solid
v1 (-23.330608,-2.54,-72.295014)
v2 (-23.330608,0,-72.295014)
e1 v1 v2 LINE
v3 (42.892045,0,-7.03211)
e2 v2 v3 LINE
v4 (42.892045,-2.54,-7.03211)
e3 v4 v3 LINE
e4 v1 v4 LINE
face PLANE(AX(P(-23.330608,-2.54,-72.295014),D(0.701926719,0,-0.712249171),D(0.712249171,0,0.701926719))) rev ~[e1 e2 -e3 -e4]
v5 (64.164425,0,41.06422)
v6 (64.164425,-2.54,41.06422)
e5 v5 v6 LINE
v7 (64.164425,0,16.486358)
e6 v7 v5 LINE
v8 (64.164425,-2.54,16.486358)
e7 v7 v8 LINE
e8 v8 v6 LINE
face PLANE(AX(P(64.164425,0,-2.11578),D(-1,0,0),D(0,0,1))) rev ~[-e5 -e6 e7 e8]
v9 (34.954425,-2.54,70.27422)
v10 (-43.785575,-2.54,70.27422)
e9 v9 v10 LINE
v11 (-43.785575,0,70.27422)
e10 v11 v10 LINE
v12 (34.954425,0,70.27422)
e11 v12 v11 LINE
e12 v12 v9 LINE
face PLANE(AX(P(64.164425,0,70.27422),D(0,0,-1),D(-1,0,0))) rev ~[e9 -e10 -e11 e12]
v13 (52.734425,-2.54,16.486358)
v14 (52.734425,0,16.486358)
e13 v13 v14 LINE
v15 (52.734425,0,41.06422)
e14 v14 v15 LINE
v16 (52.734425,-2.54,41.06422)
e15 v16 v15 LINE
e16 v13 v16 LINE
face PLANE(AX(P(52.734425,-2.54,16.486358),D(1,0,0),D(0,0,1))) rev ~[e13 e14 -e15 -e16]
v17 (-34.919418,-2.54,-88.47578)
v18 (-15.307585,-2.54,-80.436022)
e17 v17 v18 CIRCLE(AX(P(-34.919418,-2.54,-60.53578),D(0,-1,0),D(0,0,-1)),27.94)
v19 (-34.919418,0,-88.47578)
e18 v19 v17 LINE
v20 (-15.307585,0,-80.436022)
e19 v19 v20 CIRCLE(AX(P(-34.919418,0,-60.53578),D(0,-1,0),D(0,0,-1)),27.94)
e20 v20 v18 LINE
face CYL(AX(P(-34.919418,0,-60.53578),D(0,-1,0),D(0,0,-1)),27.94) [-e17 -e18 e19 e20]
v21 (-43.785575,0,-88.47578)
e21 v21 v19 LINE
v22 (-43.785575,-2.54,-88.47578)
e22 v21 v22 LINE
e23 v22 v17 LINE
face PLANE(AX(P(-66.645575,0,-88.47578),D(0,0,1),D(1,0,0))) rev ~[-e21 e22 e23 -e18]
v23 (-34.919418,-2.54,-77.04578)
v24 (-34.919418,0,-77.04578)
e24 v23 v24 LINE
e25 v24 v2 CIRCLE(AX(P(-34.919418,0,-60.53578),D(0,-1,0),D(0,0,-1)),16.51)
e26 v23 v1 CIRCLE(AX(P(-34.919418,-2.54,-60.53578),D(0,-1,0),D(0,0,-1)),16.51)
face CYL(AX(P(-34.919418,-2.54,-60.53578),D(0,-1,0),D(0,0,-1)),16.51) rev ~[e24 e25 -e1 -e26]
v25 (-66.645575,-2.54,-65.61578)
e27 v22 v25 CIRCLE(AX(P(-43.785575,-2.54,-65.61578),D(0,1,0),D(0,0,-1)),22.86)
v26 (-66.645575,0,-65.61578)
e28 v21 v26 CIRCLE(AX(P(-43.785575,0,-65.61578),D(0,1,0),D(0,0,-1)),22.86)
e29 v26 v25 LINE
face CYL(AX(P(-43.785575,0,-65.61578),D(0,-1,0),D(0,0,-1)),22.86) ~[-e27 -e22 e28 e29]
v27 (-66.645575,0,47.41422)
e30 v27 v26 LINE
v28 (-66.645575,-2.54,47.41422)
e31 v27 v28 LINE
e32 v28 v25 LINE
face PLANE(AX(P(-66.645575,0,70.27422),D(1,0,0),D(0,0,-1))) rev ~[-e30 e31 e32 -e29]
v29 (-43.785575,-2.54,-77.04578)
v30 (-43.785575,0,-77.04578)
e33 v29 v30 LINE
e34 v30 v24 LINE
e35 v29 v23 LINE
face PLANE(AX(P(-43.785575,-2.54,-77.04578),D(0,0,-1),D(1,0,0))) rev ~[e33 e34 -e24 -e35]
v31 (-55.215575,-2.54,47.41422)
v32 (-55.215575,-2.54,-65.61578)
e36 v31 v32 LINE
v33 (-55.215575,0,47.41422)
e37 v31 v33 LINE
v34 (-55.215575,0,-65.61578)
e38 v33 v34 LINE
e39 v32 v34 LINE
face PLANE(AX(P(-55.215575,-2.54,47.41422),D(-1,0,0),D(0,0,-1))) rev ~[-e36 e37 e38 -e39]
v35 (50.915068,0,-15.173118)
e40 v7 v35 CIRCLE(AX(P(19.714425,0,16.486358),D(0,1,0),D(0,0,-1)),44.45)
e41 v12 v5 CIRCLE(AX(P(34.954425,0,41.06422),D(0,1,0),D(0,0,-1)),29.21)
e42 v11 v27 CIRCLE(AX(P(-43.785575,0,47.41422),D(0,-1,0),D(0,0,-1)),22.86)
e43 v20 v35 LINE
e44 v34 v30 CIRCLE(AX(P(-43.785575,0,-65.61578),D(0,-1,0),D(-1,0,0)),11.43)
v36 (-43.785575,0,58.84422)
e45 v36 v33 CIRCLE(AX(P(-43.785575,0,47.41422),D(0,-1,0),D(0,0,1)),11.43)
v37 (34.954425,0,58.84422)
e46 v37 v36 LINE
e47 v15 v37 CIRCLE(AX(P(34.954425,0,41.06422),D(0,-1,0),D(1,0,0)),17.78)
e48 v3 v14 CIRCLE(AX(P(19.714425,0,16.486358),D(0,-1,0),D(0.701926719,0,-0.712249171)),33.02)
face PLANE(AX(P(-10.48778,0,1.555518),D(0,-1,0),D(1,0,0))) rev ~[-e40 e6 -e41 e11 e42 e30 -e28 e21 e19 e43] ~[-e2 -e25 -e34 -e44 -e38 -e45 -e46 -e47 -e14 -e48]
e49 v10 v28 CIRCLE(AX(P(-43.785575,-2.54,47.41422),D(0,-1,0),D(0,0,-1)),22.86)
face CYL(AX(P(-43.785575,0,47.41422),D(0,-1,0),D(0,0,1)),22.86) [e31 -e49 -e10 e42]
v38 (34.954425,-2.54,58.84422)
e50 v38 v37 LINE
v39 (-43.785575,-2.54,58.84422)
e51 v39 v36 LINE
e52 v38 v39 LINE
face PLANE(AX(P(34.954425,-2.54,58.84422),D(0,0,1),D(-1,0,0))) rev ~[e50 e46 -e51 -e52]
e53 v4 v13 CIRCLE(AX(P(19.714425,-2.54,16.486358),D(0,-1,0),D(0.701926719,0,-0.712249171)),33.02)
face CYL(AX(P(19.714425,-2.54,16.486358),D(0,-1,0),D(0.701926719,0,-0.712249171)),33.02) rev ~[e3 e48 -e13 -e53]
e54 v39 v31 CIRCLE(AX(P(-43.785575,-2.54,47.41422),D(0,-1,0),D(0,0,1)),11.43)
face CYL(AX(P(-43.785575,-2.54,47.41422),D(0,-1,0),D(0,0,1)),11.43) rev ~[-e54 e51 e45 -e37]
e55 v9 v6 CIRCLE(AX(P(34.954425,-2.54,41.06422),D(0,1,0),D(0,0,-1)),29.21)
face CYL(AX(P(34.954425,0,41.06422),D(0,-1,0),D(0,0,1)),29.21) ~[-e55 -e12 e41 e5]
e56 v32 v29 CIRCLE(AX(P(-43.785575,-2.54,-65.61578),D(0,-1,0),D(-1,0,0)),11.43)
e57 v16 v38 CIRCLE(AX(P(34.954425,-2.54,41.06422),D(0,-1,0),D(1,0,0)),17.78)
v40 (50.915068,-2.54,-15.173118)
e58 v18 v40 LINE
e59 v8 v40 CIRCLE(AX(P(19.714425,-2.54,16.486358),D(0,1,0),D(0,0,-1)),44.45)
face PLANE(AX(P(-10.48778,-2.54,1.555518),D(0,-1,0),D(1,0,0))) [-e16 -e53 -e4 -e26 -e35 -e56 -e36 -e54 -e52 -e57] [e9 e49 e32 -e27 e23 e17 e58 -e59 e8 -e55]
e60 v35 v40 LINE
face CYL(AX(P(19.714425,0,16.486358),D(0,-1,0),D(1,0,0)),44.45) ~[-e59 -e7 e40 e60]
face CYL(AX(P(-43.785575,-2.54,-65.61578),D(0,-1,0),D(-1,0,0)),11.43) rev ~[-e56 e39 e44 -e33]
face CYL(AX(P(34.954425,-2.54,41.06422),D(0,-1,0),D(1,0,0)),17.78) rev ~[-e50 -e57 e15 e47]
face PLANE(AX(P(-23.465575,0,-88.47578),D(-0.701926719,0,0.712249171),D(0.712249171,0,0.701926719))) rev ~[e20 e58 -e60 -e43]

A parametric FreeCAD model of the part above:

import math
import FreeCAD as App
import Part
import Sketcher
Q = App.Units.Quantity


def edges_at(feature, points):
    """Names of the edges that pass closest to the given points."""
    edges = feature.Shape.Edges
    near = lambda p: min(range(len(edges)), key=lambda i: edges[i].distToShape(Part.Vertex(*p))[0])
    return sorted({f"Edge{near(p) + 1}" for p in points})


def add_polygon(sketch, points):
    """Adds a closed chain of lines whose ends are joined by coincident constraints."""
    first, n = sketch.GeometryCount, len(points)
    for a, b in zip(points, points[1:] + points[:1]):
        sketch.addGeometry(Part.LineSegment(App.Vector(*a, 0), App.Vector(*b, 0)), False)
    for i in range(n):
        sketch.addConstraint(Sketcher.Constraint("Coincident", first + i, 2, first + (i + 1) % n, 1))

doc = App.newDocument("Part")
body = doc.addObject("PartDesign::Body", "Body")

sketch1 = doc.addObject("Sketcher::SketchObject", "Sketch")
body.addObject(sketch1)
sketch1.AttachmentSupport = (doc.XZ_Plane, [""])
sketch1.MapMode = "FlatFace"
add_polygon(sketch1, [(64, 70), (-67, 70), (-67, -88), (-23, -88), (64, -2)])
sketch1.addConstraint([
    Sketcher.Constraint("Horizontal", 0),
    Sketcher.Constraint("Vertical", 1),
    Sketcher.Constraint("Horizontal", 2),
    Sketcher.Constraint("Vertical", 4),
    Sketcher.Constraint("DistanceX", 2, 1, 2, 2, Q("1.7 in")),
    Sketcher.Constraint("DistanceX", 0, 2, 0, 1, Q("5.15 in")),
    Sketcher.Constraint("DistanceY", 1, 2, 1, 1, Q("6.25 in")),
    Sketcher.Constraint("DistanceY", 4, 1, 4, 2, Q("2.85 in")),
    Sketcher.Constraint("DistanceY", -1, 1, 0, 2, Q("70.27422 mm")),
    Sketcher.Constraint("DistanceX", 0, 2, -1, 1, Q("66.645575 mm")),
])
pad1 = doc.addObject("PartDesign::Pad", "Pad")
body.addObject(pad1)
pad1.Profile = sketch1
pad1.Length = Q("0.1 in")
doc.recompute()

fillet = doc.addObject("PartDesign::Fillet", "Fillet")
body.addObject(fillet)
fillet.Base = (pad1, edges_at(pad1, [(-66.646, -1.27, 70.274)]))
fillet.Radius = Q("0.9 in")
doc.recompute()

fillet2 = doc.addObject("PartDesign::Fillet", "Fillet001")
body.addObject(fillet2)
fillet2.Base = (fillet, edges_at(fillet, [(64.164, -1.27, 70.274)]))
fillet2.Radius = Q("1.15 in")
doc.recompute()

fillet3 = doc.addObject("PartDesign::Fillet", "Fillet002")
body.addObject(fillet3)
fillet3.Base = (fillet2, edges_at(fillet2, [(64.164, -1.27, -2.116)]))
fillet3.Radius = Q("1.75 in")
doc.recompute()

fillet4 = doc.addObject("PartDesign::Fillet", "Fillet003")
body.addObject(fillet4)
fillet4.Base = (fillet3, edges_at(fillet3, [(-66.646, -1.27, -88.476)]))
fillet4.Radius = Q("0.9 in")
doc.recompute()

fillet5 = doc.addObject("PartDesign::Fillet", "Fillet004")
body.addObject(fillet5)
fillet5.Base = (fillet4, edges_at(fillet4, [(-23.466, -1.27, -88.476)]))
fillet5.Radius = Q("1.1 in")

sketch2 = doc.addObject("Sketcher::SketchObject", "Sketch001")
body.addObject(sketch2)
sketch2.AttachmentSupport = (doc.XZ_Plane, [""])
sketch2.MapMode = "FlatFace"
sketch2.AttachmentOffset = App.Placement(App.Vector(0, 0, 0.1 * 25.4), App.Rotation())
sketch2.addGeometry([
    Part.ArcOfCircle(Part.Circle(App.Vector(20, 16, 0), App.Vector(0, 0, 1), 33), math.radians(-45), math.radians(0)),
    Part.LineSegment(App.Vector(53, 16, 0), App.Vector(53, 41, 0)),
    Part.ArcOfCircle(Part.Circle(App.Vector(35, 41, 0), App.Vector(0, 0, 1), 18), math.radians(0), math.radians(90)),
    Part.LineSegment(App.Vector(35, 59, 0), App.Vector(-44, 59, 0)),
    Part.ArcOfCircle(Part.Circle(App.Vector(-44, 47, 0), App.Vector(0, 0, 1), 11), math.radians(90), math.radians(180)),
    Part.LineSegment(App.Vector(-55, 47, 0), App.Vector(-55, -66, 0)),
    Part.ArcOfCircle(Part.Circle(App.Vector(-44, -66, 0), App.Vector(0, 0, 1), 11), math.radians(180), math.radians(270)),
    Part.LineSegment(App.Vector(-44, -77, 0), App.Vector(-35, -77, 0)),
    Part.ArcOfCircle(Part.Circle(App.Vector(-35, -61, 0), App.Vector(0, 0, 1), 17), math.radians(-90), math.radians(-45)),
    Part.LineSegment(App.Vector(-23, -72, 0), App.Vector(43, -7, 0)),
], False)
sketch2.addConstraint([
    Sketcher.Constraint("Tangent", 0, 2, 1, 1),
    Sketcher.Constraint("Tangent", 1, 2, 2, 1),
    Sketcher.Constraint("Tangent", 2, 2, 3, 1),
    Sketcher.Constraint("Tangent", 3, 2, 4, 1),
    Sketcher.Constraint("Tangent", 4, 2, 5, 1),
    Sketcher.Constraint("Tangent", 5, 2, 6, 1),
    Sketcher.Constraint("Tangent", 6, 2, 7, 1),
    Sketcher.Constraint("Tangent", 7, 2, 8, 1),
    Sketcher.Constraint("Tangent", 8, 2, 9, 1),
    Sketcher.Constraint("Tangent", 9, 2, 0, 1),
    Sketcher.Constraint("Vertical", 1),
    Sketcher.Constraint("Horizontal", 3),
    Sketcher.Constraint("Vertical", 5),
    Sketcher.Constraint("Horizontal", 7),
    Sketcher.Constraint("Equal", 4, 6),
    Sketcher.Constraint("Radius", 0, Q("1.3 in")),
    Sketcher.Constraint("Radius", 2, Q("0.7 in")),
    Sketcher.Constraint("Radius", 4, Q("0.45 in")),
    Sketcher.Constraint("Radius", 8, Q("0.65 in")),
    Sketcher.Constraint("DistanceX", 3, 2, 3, 1, Q("3.1 in")),
    Sketcher.Constraint("DistanceY", 8, 3, 2, 3, Q("4 in")),
    Sketcher.Constraint("DistanceX", 7, 1, 7, 2, Q("8.866157 mm")),
    Sketcher.Constraint("DistanceY", 1, 1, 1, 2, Q("24.577862 mm")),
    Sketcher.Constraint("DistanceY", -1, 1, 0, 3, Q("16.486358 mm")),
    Sketcher.Constraint("DistanceX", -1, 1, 0, 3, Q("19.714425 mm")),
])
pocket1 = doc.addObject("PartDesign::Pocket", "Pocket")
body.addObject(pocket1)
pocket1.Profile = sketch2
pocket1.Type = "ThroughAll"

doc.recompute()
